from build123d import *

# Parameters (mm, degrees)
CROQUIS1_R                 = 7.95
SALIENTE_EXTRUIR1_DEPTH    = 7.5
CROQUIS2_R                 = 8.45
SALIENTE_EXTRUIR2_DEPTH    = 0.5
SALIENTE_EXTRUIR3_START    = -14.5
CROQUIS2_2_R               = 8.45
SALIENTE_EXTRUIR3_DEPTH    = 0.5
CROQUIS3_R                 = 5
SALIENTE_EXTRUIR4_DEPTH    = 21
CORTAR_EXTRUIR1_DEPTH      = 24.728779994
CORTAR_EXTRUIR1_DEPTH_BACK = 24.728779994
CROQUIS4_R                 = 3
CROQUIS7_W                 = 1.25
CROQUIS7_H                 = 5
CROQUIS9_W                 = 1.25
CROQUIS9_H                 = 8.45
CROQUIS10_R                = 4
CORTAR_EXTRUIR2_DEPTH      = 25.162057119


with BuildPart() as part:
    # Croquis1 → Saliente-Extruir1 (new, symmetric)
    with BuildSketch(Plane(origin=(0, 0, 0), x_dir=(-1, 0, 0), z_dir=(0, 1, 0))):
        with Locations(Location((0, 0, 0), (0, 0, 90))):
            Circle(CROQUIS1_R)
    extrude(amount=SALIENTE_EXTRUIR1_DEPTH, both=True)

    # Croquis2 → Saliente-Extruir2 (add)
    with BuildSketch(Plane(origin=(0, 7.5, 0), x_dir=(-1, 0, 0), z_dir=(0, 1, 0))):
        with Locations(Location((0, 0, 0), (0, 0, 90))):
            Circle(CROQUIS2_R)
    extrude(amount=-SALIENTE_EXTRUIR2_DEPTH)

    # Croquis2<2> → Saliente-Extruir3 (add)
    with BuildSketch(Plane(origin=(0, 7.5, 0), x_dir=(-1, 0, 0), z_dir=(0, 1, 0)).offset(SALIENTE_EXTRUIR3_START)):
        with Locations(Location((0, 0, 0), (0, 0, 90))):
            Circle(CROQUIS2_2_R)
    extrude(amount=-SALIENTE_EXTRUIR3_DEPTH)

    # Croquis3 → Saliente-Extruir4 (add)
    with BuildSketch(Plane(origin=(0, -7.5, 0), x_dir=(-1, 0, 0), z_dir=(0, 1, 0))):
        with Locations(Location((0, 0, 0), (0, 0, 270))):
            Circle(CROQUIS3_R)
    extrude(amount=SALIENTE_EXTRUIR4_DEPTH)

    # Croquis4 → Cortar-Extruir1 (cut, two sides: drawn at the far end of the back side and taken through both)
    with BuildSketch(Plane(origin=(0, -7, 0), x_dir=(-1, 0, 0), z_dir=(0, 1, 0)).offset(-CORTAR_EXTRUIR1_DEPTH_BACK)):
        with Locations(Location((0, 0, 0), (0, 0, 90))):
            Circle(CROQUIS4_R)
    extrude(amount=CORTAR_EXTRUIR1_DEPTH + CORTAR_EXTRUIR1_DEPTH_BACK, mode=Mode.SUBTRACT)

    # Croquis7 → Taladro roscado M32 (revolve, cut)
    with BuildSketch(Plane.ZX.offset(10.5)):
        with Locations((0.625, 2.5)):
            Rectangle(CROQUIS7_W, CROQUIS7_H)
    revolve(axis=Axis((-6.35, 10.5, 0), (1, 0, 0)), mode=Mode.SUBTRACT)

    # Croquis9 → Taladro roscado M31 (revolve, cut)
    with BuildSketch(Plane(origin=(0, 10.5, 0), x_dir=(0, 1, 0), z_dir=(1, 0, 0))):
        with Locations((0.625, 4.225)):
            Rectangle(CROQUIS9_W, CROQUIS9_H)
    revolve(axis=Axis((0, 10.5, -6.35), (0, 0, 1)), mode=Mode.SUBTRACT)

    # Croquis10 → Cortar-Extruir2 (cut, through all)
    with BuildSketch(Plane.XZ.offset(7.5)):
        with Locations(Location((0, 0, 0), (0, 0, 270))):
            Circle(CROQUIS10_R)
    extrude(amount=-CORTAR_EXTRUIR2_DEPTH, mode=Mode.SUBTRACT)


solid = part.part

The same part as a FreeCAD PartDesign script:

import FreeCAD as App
import Part
import Sketcher
from FreeCAD import Vector
Q = App.Units.Quantity

doc = App.newDocument("Part")
body = doc.addObject("PartDesign::Body", "Body")

# Sketch on XZ plane
sketch1 = body.newObject("Sketcher::SketchObject", "Sketch")
sketch1.AttachmentSupport = (doc.getObject("XZ_Plane"), [""])
sketch1.MapMode = "FlatFace"
sketch1.addGeometry(Part.Circle(Vector(0, 0, 0), Vector(0, 0, 1), 8), False)
sketch1.addConstraint(Sketcher.Constraint("Coincident", 0, 3, -1, 1))
sketch1.addConstraint(Sketcher.Constraint("Diameter", 0, Q("15.9 mm")))
pad1 = body.newObject("PartDesign::Pad", "Pad")
pad1.Profile = sketch1
pad1.Length = 15
pad1.Midplane = True

# Sketch on XZ plane
sketch2 = body.newObject("Sketcher::SketchObject", "Sketch001")
sketch2.AttachmentSupport = (doc.getObject("XZ_Plane"), [""])
sketch2.MapMode = "FlatFace"
sketch2.AttachmentOffset = App.Placement(Vector(0, 0, -7.5), App.Rotation())
sketch2.addGeometry(Part.Circle(Vector(0, 0, 0), Vector(0, 0, 1), 8), False)
sketch2.addConstraint(Sketcher.Constraint("Coincident", 0, 3, -1, 1))
sketch2.addConstraint(Sketcher.Constraint("Diameter", 0, Q("16.9 mm")))
pad2 = body.newObject("PartDesign::Pad", "Pad001")
pad2.Profile = sketch2
pad2.Length = 0.5

# Sketch on XZ plane
sketch3 = body.newObject("Sketcher::SketchObject", "Sketch002")
sketch3.AttachmentSupport = (doc.getObject("XZ_Plane"), [""])
sketch3.MapMode = "FlatFace"
sketch3.AttachmentOffset = App.Placement(Vector(0, 0, 7), App.Rotation())
sketch3.addGeometry(Part.Circle(Vector(0, 0, 0), Vector(0, 0, 1), 8), False)
sketch3.addConstraint(Sketcher.Constraint("Coincident", 0, 3, -1, 1))
sketch3.addConstraint(Sketcher.Constraint("Diameter", 0, Q("16.9 mm")))
pad3 = body.newObject("PartDesign::Pad", "Pad002")
pad3.Profile = sketch3
pad3.Length = 0.5

# Sketch on XZ plane
sketch4 = body.newObject("Sketcher::SketchObject", "Sketch003")
sketch4.AttachmentSupport = (doc.getObject("XZ_Plane"), [""])
sketch4.MapMode = "FlatFace"
sketch4.AttachmentOffset = App.Placement(Vector(0, 0, 7.5), App.Rotation())
sketch4.addGeometry(Part.Circle(Vector(0, 0, 0), Vector(0, 0, 1), 5), False)
sketch4.addConstraint(Sketcher.Constraint("Coincident", 0, 3, -1, 1))
sketch4.addConstraint(Sketcher.Constraint("Diameter", 0, Q("10 mm")))
pad4 = body.newObject("PartDesign::Pad", "Pad003")
pad4.Profile = sketch4
pad4.Length = 21
pad4.Reversed = True

# Sketch on XZ plane
sketch5 = body.newObject("Sketcher::SketchObject", "Sketch004")
sketch5.AttachmentSupport = (doc.getObject("XZ_Plane"), [""])
sketch5.MapMode = "FlatFace"
sketch5.AttachmentOffset = App.Placement(Vector(0, 0, 7), App.Rotation())
sketch5.addGeometry(Part.Circle(Vector(0, 0, 0), Vector(0, 0, 1), 3), False)
sketch5.addConstraint(Sketcher.Constraint("Coincident", 0, 3, -1, 1))
sketch5.addConstraint(Sketcher.Constraint("Diameter", 0, Q("6 mm")))
pocket1 = body.newObject("PartDesign::Pocket", "Pocket")
pocket1.Profile = sketch5
pocket1.Type = "ThroughAll"
pocket1.Midplane = True

# Sketch on XZ plane
sketch6 = body.newObject("Sketcher::SketchObject", "Sketch005")
sketch6.AttachmentSupport = (doc.getObject("XZ_Plane"), [""])
sketch6.MapMode = "FlatFace"
sketch6.AttachmentOffset = App.Placement(Vector(0, 0, -10.5), App.Rotation())
sketch6.addGeometry(Part.LineSegment(Vector(5, 0, 0), Vector(0, 0, 0)), False)
sketch6.addGeometry(Part.LineSegment(Vector(0, 0, 0), Vector(0, 1.2, 0)), False)
sketch6.addGeometry(Part.LineSegment(Vector(0, 1.2, 0), Vector(5, 1.2, 0)), False)
sketch6.addGeometry(Part.LineSegment(Vector(5, 1.2, 0), Vector(5, 0, 0)), False)
sketch6.addConstraint(Sketcher.Constraint("Coincident", 0, 2, 1, 1))
sketch6.addConstraint(Sketcher.Constraint("Coincident", 1, 2, 2, 1))
sketch6.addConstraint(Sketcher.Constraint("Coincident", 2, 2, 3, 1))
sketch6.addConstraint(Sketcher.Constraint("Coincident", 3, 2, 0, 1))
sketch6.addConstraint(Sketcher.Constraint("Horizontal", 0))
sketch6.addConstraint(Sketcher.Constraint("Vertical", 1))
sketch6.addConstraint(Sketcher.Constraint("Horizontal", 2))
sketch6.addConstraint(Sketcher.Constraint("Vertical", 3))
sketch6.addConstraint(Sketcher.Constraint("Coincident", 0, 2, -1, 1))
sketch6.addConstraint(Sketcher.Constraint("DistanceX", 0, 2, 0, 1, Q("5 mm")))
sketch6.addConstraint(Sketcher.Constraint("DistanceY", 1, 1, 1, 2, Q("1.25 mm")))
groove = body.newObject("PartDesign::Groove", "Groove")
groove.Profile = sketch6
groove.ReferenceAxis = (sketch6, ["H_Axis"])
groove.Angle = 360

# Sketch on YZ plane
sketch7 = body.newObject("Sketcher::SketchObject", "Sketch006")
sketch7.AttachmentSupport = (doc.getObject("YZ_Plane"), [""])
sketch7.MapMode = "FlatFace"
sketch7.addGeometry(Part.LineSegment(Vector(10.5, 8.4, 0), Vector(10.5, 0, 0)), False)
sketch7.addGeometry(Part.LineSegment(Vector(10.5, 0, 0), Vector(11.8, 0, 0)), False)
sketch7.addGeometry(Part.LineSegment(Vector(11.8, 0, 0), Vector(11.8, 8.4, 0)), False)
sketch7.addGeometry(Part.LineSegment(Vector(11.8, 8.4, 0), Vector(10.5, 8.4, 0)), False)
sketch7.addGeometry(Part.LineSegment(Vector(10.5, 0, 0), Vector(10.5, 8.4, 0)), True)  # axis
sketch7.addConstraint(Sketcher.Constraint("Coincident", 0, 2, 1, 1))
sketch7.addConstraint(Sketcher.Constraint("Coincident", 1, 2, 2, 1))
sketch7.addConstraint(Sketcher.Constraint("Coincident", 2, 2, 3, 1))
sketch7.addConstraint(Sketcher.Constraint("Coincident", 3, 2, 0, 1))
sketch7.addConstraint(Sketcher.Constraint("Vertical", 0))
sketch7.addConstraint(Sketcher.Constraint("Horizontal", 1))
sketch7.addConstraint(Sketcher.Constraint("Vertical", 2))
sketch7.addConstraint(Sketcher.Constraint("Horizontal", 3))
sketch7.addConstraint(Sketcher.Constraint("Vertical", 4))
sketch7.addConstraint(Sketcher.Constraint("Coincident", 4, 1, 0, 2))
sketch7.addConstraint(Sketcher.Constraint("PointOnObject", 0, 2, -1))
sketch7.addConstraint(Sketcher.Constraint("Horizontal", 2, 2, 4, 2))
sketch7.addConstraint(Sketcher.Constraint("DistanceX", 1, 1, 1, 2, Q("1.25 mm")))
sketch7.addConstraint(Sketcher.Constraint("DistanceY", 0, 2, 0, 1, Q("8.45 mm")))
sketch7.addConstraint(Sketcher.Constraint("DistanceX", -1, 1, 0, 2, Q("10.5 mm")))
groove2 = body.newObject("PartDesign::Groove", "Groove001")
groove2.Profile = sketch7
groove2.ReferenceAxis = (sketch7, ["Axis0"])
groove2.Angle = 360

# Sketch on XZ plane
sketch8 = body.newObject("Sketcher::SketchObject", "Sketch007")
sketch8.AttachmentSupport = (doc.getObject("XZ_Plane"), [""])
sketch8.MapMode = "FlatFace"
sketch8.AttachmentOffset = App.Placement(Vector(0, 0, 7.5), App.Rotation())
sketch8.addGeometry(Part.Circle(Vector(0, 0, 0), Vector(0, 0, 1), 4), False)
sketch8.addConstraint(Sketcher.Constraint("Coincident", 0, 3, -1, 1))
sketch8.addConstraint(Sketcher.Constraint("Diameter", 0, Q("8 mm")))
pocket2 = body.newObject("PartDesign::Pocket", "Pocket001")
pocket2.Profile = sketch8
pocket2.Type = "ThroughAll"

doc.recompute()
